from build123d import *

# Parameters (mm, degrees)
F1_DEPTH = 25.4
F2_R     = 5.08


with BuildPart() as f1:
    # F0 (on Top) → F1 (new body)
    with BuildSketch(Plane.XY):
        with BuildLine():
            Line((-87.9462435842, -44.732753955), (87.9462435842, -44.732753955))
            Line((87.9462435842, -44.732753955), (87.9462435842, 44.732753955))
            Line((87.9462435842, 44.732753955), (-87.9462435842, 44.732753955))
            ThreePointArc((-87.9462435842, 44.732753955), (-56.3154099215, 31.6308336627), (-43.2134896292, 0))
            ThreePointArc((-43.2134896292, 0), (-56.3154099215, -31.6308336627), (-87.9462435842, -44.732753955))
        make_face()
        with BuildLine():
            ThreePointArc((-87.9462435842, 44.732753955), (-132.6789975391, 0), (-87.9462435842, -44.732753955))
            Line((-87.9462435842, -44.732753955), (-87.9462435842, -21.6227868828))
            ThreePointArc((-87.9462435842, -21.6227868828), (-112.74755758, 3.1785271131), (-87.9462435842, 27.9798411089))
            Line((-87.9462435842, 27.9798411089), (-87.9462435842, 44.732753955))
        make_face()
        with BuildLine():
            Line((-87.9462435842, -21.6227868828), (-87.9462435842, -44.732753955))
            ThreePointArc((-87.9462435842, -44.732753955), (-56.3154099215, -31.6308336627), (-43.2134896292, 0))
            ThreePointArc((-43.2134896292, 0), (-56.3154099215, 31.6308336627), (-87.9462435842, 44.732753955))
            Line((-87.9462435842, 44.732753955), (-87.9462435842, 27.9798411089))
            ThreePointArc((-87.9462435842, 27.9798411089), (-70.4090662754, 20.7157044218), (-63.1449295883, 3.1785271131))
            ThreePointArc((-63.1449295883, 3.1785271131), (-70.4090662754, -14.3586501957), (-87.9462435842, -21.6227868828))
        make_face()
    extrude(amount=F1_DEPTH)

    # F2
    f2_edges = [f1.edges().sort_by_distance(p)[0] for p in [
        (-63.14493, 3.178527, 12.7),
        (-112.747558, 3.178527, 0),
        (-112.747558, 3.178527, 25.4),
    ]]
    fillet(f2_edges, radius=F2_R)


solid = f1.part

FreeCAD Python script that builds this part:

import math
import FreeCAD as App
import Part
import Sketcher
from FreeCAD import Vector
Q = App.Units.Quantity


def edges_at(feature, points):
    """Names of the edges that pass closest to the given points."""
    edges = feature.Shape.Edges
    near = lambda p: min(range(len(edges)), key=lambda i: edges[i].distToShape(Part.Vertex(*p))[0])
    return sorted({f"Edge{near(p) + 1}" for p in points})

doc = App.newDocument("Part")
body = doc.addObject("PartDesign::Body", "Body")

# Sketch on XY plane
sketch1 = body.newObject("Sketcher::SketchObject", "Sketch")
sketch1.AttachmentSupport = (doc.getObject("XY_Plane"), [""])
sketch1.MapMode = "FlatFace"
sketch1.addGeometry([
    Part.LineSegment(Vector(-88, -45, 0), Vector(88, -45, 0)),  # 0
    Part.LineSegment(Vector(88, -45, 0), Vector(88, 45, 0)),  # 1
    Part.LineSegment(Vector(88, 45, 0), Vector(-88, 45, 0)),  # 2
    Part.ArcOfCircle(Part.Circle(Vector(-88, 0, 0), Vector(0, 0, 1), 45), math.radians(90), math.radians(270)),  # 3
    Part.ArcOfCircle(Part.Circle(Vector(-88, 3, 0), Vector(0, 0, 1), 25), math.radians(0), math.radians(90)),  # 4
    Part.ArcOfCircle(Part.Circle(Vector(-88, 3, 0), Vector(0, 0, 1), 25), math.radians(-90), math.radians(0)),  # 5
    Part.ArcOfCircle(Part.Circle(Vector(-88, 3, 0), Vector(0, 0, 1), 25), math.radians(90), math.radians(270)),  # 6
], False)
sketch1.addConstraint([
    Sketcher.Constraint("Coincident", 0, 2, 1, 1),
    Sketcher.Constraint("Coincident", 1, 2, 2, 1),
    Sketcher.Constraint("Tangent", 2, 2, 3, 1),
    Sketcher.Constraint("Tangent", 3, 2, 0, 1),
    Sketcher.Constraint("Tangent", 4, 1, 5, 2),
    Sketcher.Constraint("Tangent", 5, 1, 6, 2),
    Sketcher.Constraint("Tangent", 6, 1, 4, 2),
    Sketcher.Constraint("Horizontal", 0),
    Sketcher.Constraint("Vertical", 1),
    Sketcher.Constraint("Horizontal", 2),
    Sketcher.Constraint("Symmetric", 0, 2, 2, 2, -1, 1),
    Sketcher.Constraint("Horizontal", 6, 3, 4, 1),
    Sketcher.Constraint("Vertical", 3, 3, 4, 3),
    Sketcher.Constraint("Vertical", 3, 2, 5, 1),
    Sketcher.Constraint("Vertical", 5, 1, 6, 1),
    Sketcher.Constraint("Radius", 3, 44.732754),
    Sketcher.Constraint("Radius", 4, 24.801314),
    Sketcher.Constraint("DistanceX", 0, 1, 0, 2, 175.892487),
    Sketcher.Constraint("DistanceY", -1, 1, 6, 1, 27.979841),
])
pad1 = body.newObject("PartDesign::Pad", "Pad")
pad1.Profile = sketch1
pad1.Length = Q("1 in")
doc.recompute()

fillet = body.newObject("PartDesign::Fillet", "Fillet")
fillet.Base = (pad1, edges_at(pad1, [(-63.145, 3.179, 12.7), (-112.748, 3.179, 0), (-112.748, 3.179, 25.4)]))
fillet.Radius = Q("0.2 in")

doc.recompute()
